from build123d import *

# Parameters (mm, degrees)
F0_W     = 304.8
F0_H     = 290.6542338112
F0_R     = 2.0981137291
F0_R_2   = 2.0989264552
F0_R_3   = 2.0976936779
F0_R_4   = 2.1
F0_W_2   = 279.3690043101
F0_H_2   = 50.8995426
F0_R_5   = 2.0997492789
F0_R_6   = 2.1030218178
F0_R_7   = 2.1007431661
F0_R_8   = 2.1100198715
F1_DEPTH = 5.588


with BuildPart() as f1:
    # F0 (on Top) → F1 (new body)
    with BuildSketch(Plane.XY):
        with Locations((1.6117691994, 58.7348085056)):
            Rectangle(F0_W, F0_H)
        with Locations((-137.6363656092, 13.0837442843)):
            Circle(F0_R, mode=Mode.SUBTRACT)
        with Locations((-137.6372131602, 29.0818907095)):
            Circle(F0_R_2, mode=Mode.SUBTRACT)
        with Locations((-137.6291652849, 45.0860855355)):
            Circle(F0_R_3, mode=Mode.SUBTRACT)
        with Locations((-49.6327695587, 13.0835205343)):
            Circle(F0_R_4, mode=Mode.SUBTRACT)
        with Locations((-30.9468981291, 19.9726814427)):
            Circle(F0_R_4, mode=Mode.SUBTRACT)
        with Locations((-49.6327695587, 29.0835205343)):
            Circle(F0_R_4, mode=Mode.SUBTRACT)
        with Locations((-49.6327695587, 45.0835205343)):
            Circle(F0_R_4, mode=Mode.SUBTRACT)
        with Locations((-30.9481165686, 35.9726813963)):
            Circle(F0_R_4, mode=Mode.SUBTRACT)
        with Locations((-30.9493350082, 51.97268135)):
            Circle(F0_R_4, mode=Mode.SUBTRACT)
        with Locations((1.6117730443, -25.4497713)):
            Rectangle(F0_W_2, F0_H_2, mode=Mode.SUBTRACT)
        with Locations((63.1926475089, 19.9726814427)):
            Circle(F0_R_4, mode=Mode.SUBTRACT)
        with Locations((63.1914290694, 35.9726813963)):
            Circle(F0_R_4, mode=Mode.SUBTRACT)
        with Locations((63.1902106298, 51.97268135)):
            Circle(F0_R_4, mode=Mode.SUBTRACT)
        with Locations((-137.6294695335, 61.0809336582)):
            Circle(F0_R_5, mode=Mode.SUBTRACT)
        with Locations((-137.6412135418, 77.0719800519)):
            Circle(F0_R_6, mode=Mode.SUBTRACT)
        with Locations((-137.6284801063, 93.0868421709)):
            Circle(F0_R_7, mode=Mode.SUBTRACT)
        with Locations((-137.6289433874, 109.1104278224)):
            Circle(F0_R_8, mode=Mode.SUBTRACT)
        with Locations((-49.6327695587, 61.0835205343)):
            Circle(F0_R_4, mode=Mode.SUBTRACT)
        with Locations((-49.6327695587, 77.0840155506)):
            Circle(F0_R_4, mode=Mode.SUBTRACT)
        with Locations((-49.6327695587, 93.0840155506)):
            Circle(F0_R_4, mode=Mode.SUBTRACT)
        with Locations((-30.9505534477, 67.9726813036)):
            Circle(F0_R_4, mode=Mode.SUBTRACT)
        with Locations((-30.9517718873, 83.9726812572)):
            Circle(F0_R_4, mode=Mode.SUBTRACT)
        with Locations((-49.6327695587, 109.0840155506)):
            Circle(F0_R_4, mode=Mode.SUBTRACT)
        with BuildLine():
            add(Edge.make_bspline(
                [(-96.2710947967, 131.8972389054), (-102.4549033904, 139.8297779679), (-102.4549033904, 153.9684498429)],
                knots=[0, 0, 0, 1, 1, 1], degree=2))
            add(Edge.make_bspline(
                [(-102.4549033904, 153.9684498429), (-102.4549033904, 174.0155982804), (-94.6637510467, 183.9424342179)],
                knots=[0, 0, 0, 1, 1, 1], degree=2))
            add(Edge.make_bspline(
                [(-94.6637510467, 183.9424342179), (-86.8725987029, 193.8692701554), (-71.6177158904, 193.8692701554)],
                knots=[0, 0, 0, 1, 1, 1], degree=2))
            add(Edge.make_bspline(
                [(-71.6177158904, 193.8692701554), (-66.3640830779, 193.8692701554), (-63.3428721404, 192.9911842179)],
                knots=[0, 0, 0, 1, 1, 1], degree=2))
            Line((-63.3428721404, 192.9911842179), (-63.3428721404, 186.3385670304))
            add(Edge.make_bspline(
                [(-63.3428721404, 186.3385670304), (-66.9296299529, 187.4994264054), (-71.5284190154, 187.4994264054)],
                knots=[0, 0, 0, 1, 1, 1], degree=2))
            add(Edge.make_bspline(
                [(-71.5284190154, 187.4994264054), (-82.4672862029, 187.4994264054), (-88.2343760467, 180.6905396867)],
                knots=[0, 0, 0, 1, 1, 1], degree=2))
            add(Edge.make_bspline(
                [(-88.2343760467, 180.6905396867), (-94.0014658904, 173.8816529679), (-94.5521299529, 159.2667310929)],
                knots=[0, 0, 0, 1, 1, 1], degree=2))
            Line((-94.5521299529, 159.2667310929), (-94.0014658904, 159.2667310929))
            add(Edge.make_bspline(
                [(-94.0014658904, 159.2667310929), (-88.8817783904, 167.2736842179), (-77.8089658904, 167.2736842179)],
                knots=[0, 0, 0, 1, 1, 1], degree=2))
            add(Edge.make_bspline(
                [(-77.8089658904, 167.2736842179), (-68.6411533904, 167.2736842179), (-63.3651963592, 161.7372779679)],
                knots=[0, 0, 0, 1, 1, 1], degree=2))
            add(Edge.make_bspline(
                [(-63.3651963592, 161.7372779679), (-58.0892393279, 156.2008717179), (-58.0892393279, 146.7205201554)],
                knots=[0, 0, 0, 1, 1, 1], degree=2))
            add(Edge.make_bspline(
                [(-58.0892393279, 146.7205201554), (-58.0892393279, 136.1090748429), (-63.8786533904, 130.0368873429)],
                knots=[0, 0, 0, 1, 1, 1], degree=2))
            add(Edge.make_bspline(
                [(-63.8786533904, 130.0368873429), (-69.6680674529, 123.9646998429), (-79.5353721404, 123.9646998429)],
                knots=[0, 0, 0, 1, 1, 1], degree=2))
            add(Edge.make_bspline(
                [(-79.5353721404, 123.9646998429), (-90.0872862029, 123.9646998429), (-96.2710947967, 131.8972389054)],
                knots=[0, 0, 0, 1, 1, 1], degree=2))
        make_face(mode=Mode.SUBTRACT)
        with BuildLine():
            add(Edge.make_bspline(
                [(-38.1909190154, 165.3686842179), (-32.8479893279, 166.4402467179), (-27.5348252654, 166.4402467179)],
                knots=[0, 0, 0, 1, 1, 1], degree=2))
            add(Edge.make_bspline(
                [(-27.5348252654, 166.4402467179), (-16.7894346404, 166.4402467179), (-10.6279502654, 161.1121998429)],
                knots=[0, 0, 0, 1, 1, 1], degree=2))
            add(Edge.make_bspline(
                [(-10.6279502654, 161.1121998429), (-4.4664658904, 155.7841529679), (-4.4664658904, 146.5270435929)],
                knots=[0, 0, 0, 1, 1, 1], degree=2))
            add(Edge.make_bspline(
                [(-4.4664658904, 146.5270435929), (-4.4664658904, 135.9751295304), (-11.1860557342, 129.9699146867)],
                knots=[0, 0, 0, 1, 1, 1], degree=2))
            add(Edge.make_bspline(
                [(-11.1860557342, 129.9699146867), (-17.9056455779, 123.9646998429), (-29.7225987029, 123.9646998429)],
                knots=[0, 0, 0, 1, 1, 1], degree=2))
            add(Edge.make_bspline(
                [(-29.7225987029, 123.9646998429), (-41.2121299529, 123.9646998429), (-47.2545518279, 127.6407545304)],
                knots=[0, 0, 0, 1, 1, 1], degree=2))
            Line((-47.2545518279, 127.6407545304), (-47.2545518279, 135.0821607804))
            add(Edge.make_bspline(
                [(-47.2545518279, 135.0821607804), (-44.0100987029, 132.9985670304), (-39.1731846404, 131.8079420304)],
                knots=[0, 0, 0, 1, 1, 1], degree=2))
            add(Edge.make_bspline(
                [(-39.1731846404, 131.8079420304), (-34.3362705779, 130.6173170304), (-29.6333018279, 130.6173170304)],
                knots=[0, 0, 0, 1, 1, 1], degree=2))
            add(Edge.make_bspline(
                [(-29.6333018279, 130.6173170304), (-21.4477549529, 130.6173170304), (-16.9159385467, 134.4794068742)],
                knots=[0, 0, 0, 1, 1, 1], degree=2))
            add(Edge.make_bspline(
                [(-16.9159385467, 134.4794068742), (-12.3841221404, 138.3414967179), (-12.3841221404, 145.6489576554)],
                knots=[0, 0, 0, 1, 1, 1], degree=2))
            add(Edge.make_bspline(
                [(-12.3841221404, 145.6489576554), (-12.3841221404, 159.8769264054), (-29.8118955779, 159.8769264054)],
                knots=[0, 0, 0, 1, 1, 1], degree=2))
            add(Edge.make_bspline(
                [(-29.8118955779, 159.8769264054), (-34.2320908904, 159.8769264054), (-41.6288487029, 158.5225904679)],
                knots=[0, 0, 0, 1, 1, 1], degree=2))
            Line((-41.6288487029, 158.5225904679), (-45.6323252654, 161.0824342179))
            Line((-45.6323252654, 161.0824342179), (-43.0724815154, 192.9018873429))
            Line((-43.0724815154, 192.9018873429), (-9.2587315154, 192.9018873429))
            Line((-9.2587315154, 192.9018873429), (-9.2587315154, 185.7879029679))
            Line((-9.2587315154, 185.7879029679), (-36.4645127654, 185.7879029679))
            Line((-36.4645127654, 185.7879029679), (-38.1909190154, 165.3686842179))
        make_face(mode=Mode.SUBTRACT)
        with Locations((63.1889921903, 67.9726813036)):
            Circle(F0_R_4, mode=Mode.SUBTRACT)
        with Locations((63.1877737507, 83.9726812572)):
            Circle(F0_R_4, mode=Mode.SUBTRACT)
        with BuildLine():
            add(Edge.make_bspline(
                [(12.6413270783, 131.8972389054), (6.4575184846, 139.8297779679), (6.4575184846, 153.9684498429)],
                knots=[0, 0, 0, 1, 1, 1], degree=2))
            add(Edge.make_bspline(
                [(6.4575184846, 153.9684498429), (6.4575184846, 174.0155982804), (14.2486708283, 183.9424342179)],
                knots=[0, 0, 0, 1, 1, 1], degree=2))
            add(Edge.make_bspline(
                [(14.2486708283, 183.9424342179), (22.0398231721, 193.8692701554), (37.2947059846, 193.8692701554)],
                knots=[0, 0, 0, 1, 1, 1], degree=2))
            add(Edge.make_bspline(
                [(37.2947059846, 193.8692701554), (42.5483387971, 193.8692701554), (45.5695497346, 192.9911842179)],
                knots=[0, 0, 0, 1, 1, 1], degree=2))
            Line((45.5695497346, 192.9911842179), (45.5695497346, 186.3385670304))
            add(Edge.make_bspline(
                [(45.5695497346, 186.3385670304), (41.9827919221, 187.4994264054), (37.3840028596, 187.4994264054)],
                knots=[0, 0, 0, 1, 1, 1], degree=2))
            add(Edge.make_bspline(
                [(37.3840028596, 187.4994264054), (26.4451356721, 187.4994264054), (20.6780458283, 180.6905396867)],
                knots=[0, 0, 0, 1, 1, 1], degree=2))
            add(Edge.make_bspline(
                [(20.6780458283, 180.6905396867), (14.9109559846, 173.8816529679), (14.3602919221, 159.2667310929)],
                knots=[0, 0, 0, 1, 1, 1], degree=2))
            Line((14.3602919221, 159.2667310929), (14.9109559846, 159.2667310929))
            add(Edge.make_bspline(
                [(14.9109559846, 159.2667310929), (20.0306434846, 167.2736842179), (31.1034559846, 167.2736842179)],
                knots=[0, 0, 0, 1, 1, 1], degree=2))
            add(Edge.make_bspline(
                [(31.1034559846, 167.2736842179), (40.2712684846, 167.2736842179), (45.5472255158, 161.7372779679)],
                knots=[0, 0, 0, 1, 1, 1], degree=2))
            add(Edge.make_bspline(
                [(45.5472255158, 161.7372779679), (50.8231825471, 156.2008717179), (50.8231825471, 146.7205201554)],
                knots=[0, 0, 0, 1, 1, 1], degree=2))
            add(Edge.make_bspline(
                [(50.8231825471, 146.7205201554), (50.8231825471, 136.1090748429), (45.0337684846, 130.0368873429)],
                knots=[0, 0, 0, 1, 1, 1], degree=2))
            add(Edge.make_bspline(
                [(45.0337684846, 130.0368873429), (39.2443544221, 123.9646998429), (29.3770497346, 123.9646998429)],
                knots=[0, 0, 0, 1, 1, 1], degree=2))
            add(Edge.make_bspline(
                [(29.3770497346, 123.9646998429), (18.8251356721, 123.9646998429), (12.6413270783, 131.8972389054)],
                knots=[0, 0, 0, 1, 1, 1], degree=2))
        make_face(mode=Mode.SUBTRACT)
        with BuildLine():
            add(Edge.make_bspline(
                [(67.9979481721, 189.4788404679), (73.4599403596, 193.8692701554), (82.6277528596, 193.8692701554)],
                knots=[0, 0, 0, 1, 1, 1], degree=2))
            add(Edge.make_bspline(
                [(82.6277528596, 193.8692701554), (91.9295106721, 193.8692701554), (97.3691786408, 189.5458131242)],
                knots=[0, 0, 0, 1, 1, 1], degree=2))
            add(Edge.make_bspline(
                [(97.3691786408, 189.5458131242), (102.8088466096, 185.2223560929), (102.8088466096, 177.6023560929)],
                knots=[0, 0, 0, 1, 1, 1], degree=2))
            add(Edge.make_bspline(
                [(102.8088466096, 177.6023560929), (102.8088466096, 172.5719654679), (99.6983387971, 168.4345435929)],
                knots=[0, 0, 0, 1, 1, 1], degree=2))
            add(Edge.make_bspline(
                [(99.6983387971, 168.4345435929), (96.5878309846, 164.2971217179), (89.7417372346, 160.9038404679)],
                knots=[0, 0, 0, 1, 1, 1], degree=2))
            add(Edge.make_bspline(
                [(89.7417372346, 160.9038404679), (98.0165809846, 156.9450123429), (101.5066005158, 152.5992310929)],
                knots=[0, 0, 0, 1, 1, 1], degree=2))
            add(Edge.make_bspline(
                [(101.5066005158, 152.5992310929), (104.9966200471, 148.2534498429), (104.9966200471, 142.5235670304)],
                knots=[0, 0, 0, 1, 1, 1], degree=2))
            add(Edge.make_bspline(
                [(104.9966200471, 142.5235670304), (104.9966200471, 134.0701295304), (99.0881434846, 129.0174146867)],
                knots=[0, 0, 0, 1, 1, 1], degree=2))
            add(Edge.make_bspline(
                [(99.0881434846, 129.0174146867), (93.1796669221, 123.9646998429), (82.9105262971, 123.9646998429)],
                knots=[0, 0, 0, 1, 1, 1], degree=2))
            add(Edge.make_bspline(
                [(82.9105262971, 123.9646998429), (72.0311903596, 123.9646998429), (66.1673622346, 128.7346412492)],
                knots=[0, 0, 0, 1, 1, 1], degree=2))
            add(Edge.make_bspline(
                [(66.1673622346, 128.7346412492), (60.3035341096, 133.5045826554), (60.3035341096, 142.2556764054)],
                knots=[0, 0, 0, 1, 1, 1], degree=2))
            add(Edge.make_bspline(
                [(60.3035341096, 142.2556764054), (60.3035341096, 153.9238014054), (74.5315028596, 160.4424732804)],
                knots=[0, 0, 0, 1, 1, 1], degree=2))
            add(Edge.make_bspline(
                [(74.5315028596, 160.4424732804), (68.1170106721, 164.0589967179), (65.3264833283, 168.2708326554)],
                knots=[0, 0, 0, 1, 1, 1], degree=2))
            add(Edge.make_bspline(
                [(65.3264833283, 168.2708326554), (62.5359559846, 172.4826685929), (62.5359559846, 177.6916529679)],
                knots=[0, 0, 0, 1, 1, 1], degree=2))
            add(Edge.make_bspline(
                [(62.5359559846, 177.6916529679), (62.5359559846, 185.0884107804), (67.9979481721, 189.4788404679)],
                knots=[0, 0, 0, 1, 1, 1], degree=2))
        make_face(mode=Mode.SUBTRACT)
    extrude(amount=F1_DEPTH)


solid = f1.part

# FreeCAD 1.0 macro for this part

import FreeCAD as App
import Part
import Sketcher

V = App.Vector
Q = App.Units.Quantity

doc = App.newDocument("Part")
body = doc.addObject("PartDesign::Body", "Body")

sketch1 = body.newObject("Sketcher::SketchObject", "Sketch")
sketch1.AttachmentSupport = (doc.getObject("XY_Plane"), [""])
sketch1.MapMode = "FlatFace"
sketch1.addGeometry(Part.LineSegment(V(-150.788231, 204.061925, 0), V(-150.788231, -86.592308, 0)), False)
sketch1.addGeometry(Part.LineSegment(V(-150.788231, -86.592308, 0), V(154.011769, -86.592308, 0)), False)
sketch1.addGeometry(Part.LineSegment(V(154.011769, -86.592308, 0), V(154.011769, 204.061925, 0)), False)
sketch1.addGeometry(Part.LineSegment(V(154.011769, 204.061925, 0), V(-150.788231, 204.061925, 0)), False)
sketch1.addGeometry(Part.Circle(V(-137.636366, 13.083744, 0), V(0, 0, 1), 2.098114), False)
sketch1.addGeometry(Part.Circle(V(-137.637213, 29.081891, 0), V(0, 0, 1), 2.098926), False)
sketch1.addGeometry(Part.Circle(V(-137.629165, 45.086086, 0), V(0, 0, 1), 2.097694), False)
sketch1.addGeometry(Part.Circle(V(-137.62947, 61.080934, 0), V(0, 0, 1), 2.099749), False)
sketch1.addGeometry(Part.Circle(V(-49.63277, 13.083521, 0), V(0, 0, 1), 2.1), False)
sketch1.addGeometry(Part.Circle(V(-49.63277, 29.083521, 0), V(0, 0, 1), 2.1), False)
sketch1.addGeometry(Part.Circle(V(-30.946898, 19.972681, 0), V(0, 0, 1), 2.1), False)
sketch1.addGeometry(Part.Circle(V(-30.948117, 35.972681, 0), V(0, 0, 1), 2.1), False)
sketch1.addGeometry(Part.Circle(V(-49.63277, 45.083521, 0), V(0, 0, 1), 2.1), False)
sketch1.addGeometry(Part.Circle(V(-49.63277, 61.083521, 0), V(0, 0, 1), 2.1), False)
sketch1.addGeometry(Part.Circle(V(-30.949335, 51.972681, 0), V(0, 0, 1), 2.1), False)
sketch1.addGeometry(Part.Circle(V(-30.950553, 67.972681, 0), V(0, 0, 1), 2.1), False)
sketch1.addGeometry(Part.LineSegment(V(141.296275, -50.899543, 0), V(-138.072729, -50.899543, 0)), False)
sketch1.addGeometry(Part.LineSegment(V(-138.072729, -50.899543, 0), V(-138.072729, 0, 0)), False)
sketch1.addGeometry(Part.LineSegment(V(-138.072729, 0, 0), V(141.296275, 0, 0)), False)
sketch1.addGeometry(Part.LineSegment(V(141.296275, 0, 0), V(141.296275, -50.899543, 0)), False)
sketch1.addGeometry(Part.Circle(V(63.192648, 19.972681, 0), V(0, 0, 1), 2.1), False)
sketch1.addGeometry(Part.Circle(V(63.191429, 35.972681, 0), V(0, 0, 1), 2.1), False)
sketch1.addGeometry(Part.Circle(V(63.190211, 51.972681, 0), V(0, 0, 1), 2.1), False)
sketch1.addGeometry(Part.Circle(V(63.188992, 67.972681, 0), V(0, 0, 1), 2.1), False)
sketch1.addGeometry(Part.Circle(V(-137.641214, 77.07198, 0), V(0, 0, 1), 2.103022), False)
sketch1.addGeometry(Part.Circle(V(-137.62848, 93.086842, 0), V(0, 0, 1), 2.100743), False)
sketch1.addGeometry(Part.Circle(V(-137.628943, 109.110428, 0), V(0, 0, 1), 2.11002), False)
sketch1.addGeometry(Part.Circle(V(-49.63277, 77.084016, 0), V(0, 0, 1), 2.1), False)
sketch1.addGeometry(Part.Circle(V(-49.63277, 93.084016, 0), V(0, 0, 1), 2.1), False)
sketch1.addGeometry(Part.Circle(V(-30.951772, 83.972681, 0), V(0, 0, 1), 2.1), False)
sketch1.addGeometry(Part.Circle(V(-49.63277, 109.084016, 0), V(0, 0, 1), 2.1), False)
sketch1.addGeometry(Part.BSplineCurve([V(-63.365196, 161.737278, 0), V(-58.089239, 156.200872, 0), V(-58.089239, 136.109075, 0), V(-69.668067, 123.9647, 0), V(-90.087286, 123.9647, 0), V(-96.271095, 131.897239, 0)], [3, 1, 1, 1, 3], [0, 1, 2.119309262, 3.238618524, 4.435587253], False, 2, [1, 1, 1, 1, 1, 1], False), False)
sketch1.addGeometry(Part.BSplineCurve([V(-96.271095, 131.897239, 0), V(-102.454903, 139.829778, 0), V(-102.454903, 174.015598, 0), V(-94.663751, 183.942434, 0)], [3, 1, 3], [0, 1, 2.417894737], False, 2, [1, 1, 1, 1], False), False)
sketch1.addGeometry(Part.BSplineCurve([V(-94.663751, 183.942434, 0), V(-86.872599, 193.86927, 0), V(-66.364083, 193.86927, 0), V(-63.342872, 192.991184, 0)], [3, 1, 3], [0, 1, 1.344390244], False, 2, [1, 1, 1, 1], False), False)
sketch1.addGeometry(Part.LineSegment(V(-63.342872, 192.991184, 0), V(-63.342872, 186.338567, 0)), False)
sketch1.addGeometry(Part.BSplineCurve([V(-63.342872, 186.338567, 0), V(-66.92963, 187.499426, 0), V(-82.467286, 187.499426, 0), V(-88.234376, 180.69054, 0)], [3, 1, 3], [0, 1, 3.378640777], False, 2, [1, 1, 1, 1], False), False)
sketch1.addGeometry(Part.BSplineCurve([V(-88.234376, 180.69054, 0), V(-94.001466, 173.881653, 0), V(-94.55213, 159.266731, 0)], [3, 3], [0, 1], False, 2, [1, 1, 1], False), False)
sketch1.addGeometry(Part.LineSegment(V(-94.55213, 159.266731, 0), V(-94.001466, 159.266731, 0)), False)
sketch1.addGeometry(Part.BSplineCurve([V(-94.001466, 159.266731, 0), V(-88.881778, 167.273684, 0), V(-68.641153, 167.273684, 0), V(-63.365196, 161.737278, 0)], [3, 1, 3], [0, 1, 1.827956989], False, 2, [1, 1, 1, 1], False), False)
sketch1.addGeometry(Part.LineSegment(V(-36.464513, 185.787903, 0), V(-38.190919, 165.368684, 0)), False)
sketch1.addGeometry(Part.BSplineCurve([V(-38.190919, 165.368684, 0), V(-32.847989, 166.440247, 0), V(-16.789435, 166.440247, 0), V(-4.466466, 155.784153, 0), V(-4.466466, 135.97513, 0), V(-11.186056, 129.969915, 0)], [3, 1, 1, 1, 3], [0, 1, 3.022408964, 5.044817927, 7.350104029], False, 2, [1, 1, 1, 1, 1, 1], False), False)
sketch1.addGeometry(Part.BSplineCurve([V(-11.186056, 129.969915, 0), V(-17.905646, 123.9647, 0), V(-41.21213, 123.9647, 0), V(-47.254552, 127.640755, 0)], [3, 1, 3], [0, 1, 1.972292191], False, 2, [1, 1, 1, 1], False), False)
sketch1.addGeometry(Part.LineSegment(V(-47.254552, 127.640755, 0), V(-47.254552, 135.082161, 0)), False)
sketch1.addGeometry(Part.BSplineCurve([V(-47.254552, 135.082161, 0), V(-44.010099, 132.998567, 0), V(-34.336271, 130.617317, 0), V(-21.447755, 130.617317, 0), V(-16.915939, 134.479407, 0)], [3, 1, 1, 3], [0, 1, 2, 3.740506329], False, 2, [1, 1, 1, 1, 1], False), False)
sketch1.addGeometry(Part.BSplineCurve([V(-16.915939, 134.479407, 0), V(-12.384122, 138.341497, 0), V(-12.384122, 159.876926, 0), V(-34.232091, 159.876926, 0), V(-41.628849, 158.52259, 0)], [3, 1, 1, 3], [0, 1, 2.947046843, 3.44087512], False, 2, [1, 1, 1, 1, 1], False), False)
sketch1.addGeometry(Part.LineSegment(V(-41.628849, 158.52259, 0), V(-45.632325, 161.082434, 0)), False)
sketch1.addGeometry(Part.LineSegment(V(-45.632325, 161.082434, 0), V(-43.072482, 192.901887, 0)), False)
sketch1.addGeometry(Part.LineSegment(V(-43.072482, 192.901887, 0), V(-9.258732, 192.901887, 0)), False)
sketch1.addGeometry(Part.LineSegment(V(-9.258732, 192.901887, 0), V(-9.258732, 185.787903, 0)), False)
sketch1.addGeometry(Part.LineSegment(V(-9.258732, 185.787903, 0), V(-36.464513, 185.787903, 0)), False)
sketch1.addGeometry(Part.Circle(V(63.187774, 83.972681, 0), V(0, 0, 1), 2.1), False)
sketch1.addGeometry(Part.BSplineCurve([V(45.547226, 161.737278, 0), V(50.823183, 156.200872, 0), V(50.823183, 136.109075, 0), V(39.244354, 123.9647, 0), V(18.825136, 123.9647, 0), V(12.641327, 131.897239, 0)], [3, 1, 1, 1, 3], [0, 1, 2.119309262, 3.238618524, 4.435587253], False, 2, [1, 1, 1, 1, 1, 1], False), False)
sketch1.addGeometry(Part.BSplineCurve([V(12.641327, 131.897239, 0), V(6.457518, 139.829778, 0), V(6.457518, 174.015598, 0), V(14.248671, 183.942434, 0)], [3, 1, 3], [0, 1, 2.417894737], False, 2, [1, 1, 1, 1], False), False)
sketch1.addGeometry(Part.BSplineCurve([V(14.248671, 183.942434, 0), V(22.039823, 193.86927, 0), V(42.548339, 193.86927, 0), V(45.56955, 192.991184, 0)], [3, 1, 3], [0, 1, 1.344390244], False, 2, [1, 1, 1, 1], False), False)
sketch1.addGeometry(Part.LineSegment(V(45.56955, 192.991184, 0), V(45.56955, 186.338567, 0)), False)
sketch1.addGeometry(Part.BSplineCurve([V(45.56955, 186.338567, 0), V(41.982792, 187.499426, 0), V(26.445136, 187.499426, 0), V(20.678046, 180.69054, 0)], [3, 1, 3], [0, 1, 3.378640777], False, 2, [1, 1, 1, 1], False), False)
sketch1.addGeometry(Part.BSplineCurve([V(20.678046, 180.69054, 0), V(14.910956, 173.881653, 0), V(14.360292, 159.266731, 0)], [3, 3], [0, 1], False, 2, [1, 1, 1], False), False)
sketch1.addGeometry(Part.LineSegment(V(14.360292, 159.266731, 0), V(14.910956, 159.266731, 0)), False)
sketch1.addGeometry(Part.BSplineCurve([V(14.910956, 159.266731, 0), V(20.030643, 167.273684, 0), V(40.271268, 167.273684, 0), V(45.547226, 161.737278, 0)], [3, 1, 3], [0, 1, 1.827956989], False, 2, [1, 1, 1, 1], False), False)
sketch1.addGeometry(Part.BSplineCurve([V(65.326483, 168.270833, 0), V(62.535956, 172.482669, 0), V(62.535956, 185.088411, 0), V(73.45994, 193.86927, 0), V(91.929511, 193.86927, 0), V(97.369179, 189.545813, 0)], [3, 1, 1, 1, 3], [0, 1, 2.42, 3.84, 5.280746753], False, 2, [1, 1, 1, 1, 1, 1], False), False)
sketch1.addGeometry(Part.BSplineCurve([V(97.369179, 189.545813, 0), V(102.808847, 185.222356, 0), V(102.808847, 172.571965, 0), V(96.587831, 164.297122, 0), V(89.741737, 160.90384, 0)], [3, 1, 1, 3], [0, 1, 1.66015625, 2.3203125], False, 2, [1, 1, 1, 1, 1], False), False)
sketch1.addGeometry(Part.BSplineCurve([V(89.741737, 160.90384, 0), V(98.016581, 156.945012, 0), V(101.506601, 152.599231, 0)], [3, 3], [0, 1], False, 2, [1, 1, 1], False), False)
sketch1.addGeometry(Part.BSplineCurve([V(101.506601, 152.599231, 0), V(104.99662, 148.25345, 0), V(104.99662, 134.07013, 0), V(99.088143, 129.017415, 0)], [3, 1, 3], [0, 1, 2.475324675], False, 2, [1, 1, 1, 1], False), False)
sketch1.addGeometry(Part.BSplineCurve([V(99.088143, 129.017415, 0), V(93.179667, 123.9647, 0), V(72.03119, 123.9647, 0), V(66.167362, 128.734641, 0)], [3, 1, 3], [0, 1, 2.05942029], False, 2, [1, 1, 1, 1], False), False)
sketch1.addGeometry(Part.BSplineCurve([V(66.167362, 128.734641, 0), V(60.303534, 133.504583, 0), V(60.303534, 153.923801, 0), V(74.531503, 160.442473, 0)], [3, 1, 3], [0, 1, 2.333333333], False, 2, [1, 1, 1, 1], False), False)
sketch1.addGeometry(Part.BSplineCurve([V(74.531503, 160.442473, 0), V(68.117011, 164.058997, 0), V(65.326483, 168.270833, 0)], [3, 3], [0, 1], False, 2, [1, 1, 1], False), False)
sketch1.addConstraint(Sketcher.Constraint("Block", 31))
sketch1.addConstraint(Sketcher.Constraint("Block", 32))
sketch1.addConstraint(Sketcher.Constraint("Block", 33))
sketch1.addConstraint(Sketcher.Constraint("Block", 35))
sketch1.addConstraint(Sketcher.Constraint("Block", 36))
sketch1.addConstraint(Sketcher.Constraint("Block", 38))
sketch1.addConstraint(Sketcher.Constraint("Block", 40))
sketch1.addConstraint(Sketcher.Constraint("Block", 41))
sketch1.addConstraint(Sketcher.Constraint("Block", 43))
sketch1.addConstraint(Sketcher.Constraint("Block", 44))
sketch1.addConstraint(Sketcher.Constraint("Block", 51))
sketch1.addConstraint(Sketcher.Constraint("Block", 52))
sketch1.addConstraint(Sketcher.Constraint("Block", 53))
sketch1.addConstraint(Sketcher.Constraint("Block", 55))
sketch1.addConstraint(Sketcher.Constraint("Block", 56))
sketch1.addConstraint(Sketcher.Constraint("Block", 58))
sketch1.addConstraint(Sketcher.Constraint("Block", 59))
sketch1.addConstraint(Sketcher.Constraint("Block", 60))
sketch1.addConstraint(Sketcher.Constraint("Block", 61))
sketch1.addConstraint(Sketcher.Constraint("Block", 62))
sketch1.addConstraint(Sketcher.Constraint("Block", 63))
sketch1.addConstraint(Sketcher.Constraint("Block", 64))
sketch1.addConstraint(Sketcher.Constraint("Block", 65))
sketch1.addConstraint(Sketcher.Constraint("Coincident", 0, 2, 1, 1))
sketch1.addConstraint(Sketcher.Constraint("Coincident", 1, 2, 2, 1))
sketch1.addConstraint(Sketcher.Constraint("Coincident", 2, 2, 3, 1))
sketch1.addConstraint(Sketcher.Constraint("Coincident", 3, 2, 0, 1))
sketch1.addConstraint(Sketcher.Constraint("Coincident", 16, 2, 17, 1))
sketch1.addConstraint(Sketcher.Constraint("Coincident", 17, 2, 18, 1))
sketch1.addConstraint(Sketcher.Constraint("Coincident", 18, 2, 19, 1))
sketch1.addConstraint(Sketcher.Constraint("Coincident", 19, 2, 16, 1))
sketch1.addConstraint(Sketcher.Constraint("Coincident", 33, 2, 34, 1))
sketch1.addConstraint(Sketcher.Constraint("Coincident", 34, 2, 35, 1))
sketch1.addConstraint(Sketcher.Constraint("Coincident", 36, 2, 37, 1))
sketch1.addConstraint(Sketcher.Constraint("Coincident", 37, 2, 38, 1))
sketch1.addConstraint(Sketcher.Constraint("Coincident", 39, 2, 40, 1))
sketch1.addConstraint(Sketcher.Constraint("Coincident", 41, 2, 42, 1))
sketch1.addConstraint(Sketcher.Constraint("Coincident", 42, 2, 43, 1))
sketch1.addConstraint(Sketcher.Constraint("Coincident", 44, 2, 45, 1))
sketch1.addConstraint(Sketcher.Constraint("Coincident", 45, 2, 46, 1))
sketch1.addConstraint(Sketcher.Constraint("Coincident", 46, 2, 47, 1))
sketch1.addConstraint(Sketcher.Constraint("Coincident", 47, 2, 48, 1))
sketch1.addConstraint(Sketcher.Constraint("Coincident", 48, 2, 49, 1))
sketch1.addConstraint(Sketcher.Constraint("Coincident", 49, 2, 39, 1))
sketch1.addConstraint(Sketcher.Constraint("Coincident", 53, 2, 54, 1))
sketch1.addConstraint(Sketcher.Constraint("Coincident", 54, 2, 55, 1))
sketch1.addConstraint(Sketcher.Constraint("Coincident", 56, 2, 57, 1))
sketch1.addConstraint(Sketcher.Constraint("Coincident", 57, 2, 58, 1))
sketch1.addConstraint(Sketcher.Constraint("Vertical", 0))
sketch1.addConstraint(Sketcher.Constraint("Horizontal", 1))
sketch1.addConstraint(Sketcher.Constraint("Vertical", 2))
sketch1.addConstraint(Sketcher.Constraint("Horizontal", 3))
sketch1.addConstraint(Sketcher.Constraint("Horizontal", 16))
sketch1.addConstraint(Sketcher.Constraint("Vertical", 17))
sketch1.addConstraint(Sketcher.Constraint("Horizontal", 18))
sketch1.addConstraint(Sketcher.Constraint("Vertical", 19))
sketch1.addConstraint(Sketcher.Constraint("Horizontal", 47))
sketch1.addConstraint(Sketcher.Constraint("Vertical", 48))
sketch1.addConstraint(Sketcher.Constraint("Horizontal", 49))
sketch1.addConstraint(Sketcher.Constraint("Equal", 8, 9))
sketch1.addConstraint(Sketcher.Constraint("Equal", 9, 10))
sketch1.addConstraint(Sketcher.Constraint("Equal", 10, 11))
sketch1.addConstraint(Sketcher.Constraint("Equal", 11, 12))
sketch1.addConstraint(Sketcher.Constraint("Equal", 12, 13))
sketch1.addConstraint(Sketcher.Constraint("Equal", 13, 14))
sketch1.addConstraint(Sketcher.Constraint("Equal", 14, 15))
sketch1.addConstraint(Sketcher.Constraint("Equal", 15, 20))
sketch1.addConstraint(Sketcher.Constraint("Equal", 20, 21))
sketch1.addConstraint(Sketcher.Constraint("Equal", 21, 22))
sketch1.addConstraint(Sketcher.Constraint("Equal", 22, 23))
sketch1.addConstraint(Sketcher.Constraint("Equal", 23, 27))
sketch1.addConstraint(Sketcher.Constraint("Equal", 27, 28))
sketch1.addConstraint(Sketcher.Constraint("Equal", 28, 29))
sketch1.addConstraint(Sketcher.Constraint("Equal", 29, 30))
sketch1.addConstraint(Sketcher.Constraint("Equal", 30, 50))
sketch1.addConstraint(Sketcher.Constraint("PointOnObject", 17, 2, -1))
sketch1.addConstraint(Sketcher.Constraint("Horizontal", 10, 3, 20, 3))
sketch1.addConstraint(Sketcher.Constraint("Horizontal", 11, 3, 21, 3))
sketch1.addConstraint(Sketcher.Constraint("Horizontal", 14, 3, 22, 3))
sketch1.addConstraint(Sketcher.Constraint("Horizontal", 15, 3, 23, 3))
sketch1.addConstraint(Sketcher.Constraint("Horizontal", 29, 3, 50, 3))
sketch1.addConstraint(Sketcher.Constraint("Vertical", 8, 3, 9, 3))
sketch1.addConstraint(Sketcher.Constraint("Vertical", 9, 3, 12, 3))
sketch1.addConstraint(Sketcher.Constraint("Vertical", 12, 3, 13, 3))
sketch1.addConstraint(Sketcher.Constraint("Vertical", 13, 3, 27, 3))
sketch1.addConstraint(Sketcher.Constraint("Vertical", 27, 3, 28, 3))
sketch1.addConstraint(Sketcher.Constraint("Vertical", 28, 3, 30, 3))
sketch1.addConstraint(Sketcher.Constraint("DistanceX", 1, 1, 1, 2, Q("12 in")))
sketch1.addConstraint(Sketcher.Constraint("Diameter", 7, 4.199499))
sketch1.addConstraint(Sketcher.Constraint("Diameter", 8, 4.2))
sketch1.addConstraint(Sketcher.Constraint("Diameter", 26, 4.22004))
sketch1.addConstraint(Sketcher.Constraint("Diameter", 4, 4.196227))
sketch1.addConstraint(Sketcher.Constraint("Diameter", 5, 4.197853))
sketch1.addConstraint(Sketcher.Constraint("Diameter", 6, 4.195387))
sketch1.addConstraint(Sketcher.Constraint("Diameter", 24, 4.206044))
sketch1.addConstraint(Sketcher.Constraint("Diameter", 25, 4.201486))
sketch1.addConstraint(Sketcher.Constraint("DistanceX", 23, 3, 1, 2, Q("3.5756999 in")))
sketch1.addConstraint(Sketcher.Constraint("DistanceX", 47, 1, 47, 2, 33.81375))
sketch1.addConstraint(Sketcher.Constraint("DistanceX", 49, 2, 49, 1, 27.205781))
sketch1.addConstraint(Sketcher.Constraint("DistanceX", 10, 3, -1, 1, 30.946898))
sketch1.addConstraint(Sketcher.Constraint("DistanceX", 4, 3, 6, 3, 0.0072))
sketch1.addConstraint(Sketcher.Constraint("DistanceX", 7, 3, 8, 3, 87.9967))
sketch1.addConstraint(Sketcher.Constraint("DistanceY", 8, 3, 9, 3, 16.0))
sketch1.addConstraint(Sketcher.Constraint("DistanceY", 10, 3, 11, 3, 16.0))
sketch1.addConstraint(Sketcher.Constraint("DistanceY", 9, 3, 12, 3, 16.0))
sketch1.addConstraint(Sketcher.Constraint("DistanceY", 12, 3, 13, 3, 16.0))
sketch1.addConstraint(Sketcher.Constraint("DistanceY", 11, 3, 14, 3, 16.0))
sketch1.addConstraint(Sketcher.Constraint("DistanceY", 14, 3, 15, 3, 16.0))
sketch1.addConstraint(Sketcher.Constraint("DistanceX", 15, 3, 20, 3, 94.143201))
sketch1.addConstraint(Sketcher.Constraint("DistanceX", 24, 3, 5, 3, 0.004))
sketch1.addConstraint(Sketcher.Constraint("DistanceY", 27, 3, 28, 3, 16.0))
sketch1.addConstraint(Sketcher.Constraint("DistanceY", 15, 3, 29, 3, 16.0))
sketch1.addConstraint(Sketcher.Constraint("DistanceY", 28, 3, 30, 3, 16.0))
sketch1.addConstraint(Sketcher.Constraint("DistanceY", 0, 2, 5, 3, 115.674199))
sketch1.addConstraint(Sketcher.Constraint("DistanceX", 0, 2, 16, 2, 12.715502))
sketch1.addConstraint(Sketcher.Constraint("DistanceX", 34, 2, 29, 3, 32.3911))
sketch1.addConstraint(Sketcher.Constraint("Distance", 39, 20.492071))
sketch1.addConstraint(Sketcher.Constraint("DistanceX", 16, 2, 16, 1, 279.369004))
sketch1.addConstraint(Sketcher.Constraint("DistanceY", 0, 2, 0, 1, 290.654234))
sketch1.addConstraint(Sketcher.Constraint("DistanceY", 17, 1, 17, 2, 50.899543))
sketch1.addConstraint(Sketcher.Constraint("DistanceY", 48, 2, 48, 1, 7.113984))
sketch1.addConstraint(Sketcher.Constraint("DistanceY", -1, 1, 5, 3, 29.081891))
sketch1.addConstraint(Sketcher.Constraint("DistanceX", 7, 3, -1, 1, 137.62947))
sketch1.addConstraint(Sketcher.Constraint("DistanceY", -1, 1, 8, 3, 13.083521))
sketch1.addConstraint(Sketcher.Constraint("DistanceY", -1, 1, 10, 3, 19.972681))
sketch1.addConstraint(Sketcher.Constraint("DistanceX", -1, 1, 21, 3, 63.191429))
sketch1.addConstraint(Sketcher.Constraint("DistanceX", -1, 1, 22, 3, 63.190211))
sketch1.addConstraint(Sketcher.Constraint("DistanceY", -1, 1, 24, 3, 77.07198))
sketch1.addConstraint(Sketcher.Constraint("DistanceX", 25, 3, -1, 1, 137.62848))
sketch1.addConstraint(Sketcher.Constraint("DistanceX", 0, 2, -1, 1, 150.788231))
sketch1.addConstraint(Sketcher.Constraint("DistanceX", 46, 2, -1, 1, 43.072482))
sketch1.addConstraint(Sketcher.Constraint("DistanceY", 4, 3, 6, 3, 32.002341))
sketch1.addConstraint(Sketcher.Constraint("DistanceY", 6, 3, 7, 3, 15.994848))
sketch1.addConstraint(Sketcher.Constraint("DistanceX", 11, 3, 10, 3, 0.001218))
sketch1.addConstraint(Sketcher.Constraint("DistanceX", 6, 3, 11, 3, 106.681049))
sketch1.addConstraint(Sketcher.Constraint("DistanceX", 14, 3, 11, 3, 0.001218))
sketch1.addConstraint(Sketcher.Constraint("DistanceX", 15, 3, 14, 3, 0.001218))
sketch1.addConstraint(Sketcher.Constraint("DistanceX", 24, 3, 6, 3, 0.012048))
sketch1.addConstraint(Sketcher.Constraint("DistanceY", 7, 3, 25, 3, 32.005909))
sketch1.addConstraint(Sketcher.Constraint("DistanceY", 5, 3, 25, 3, 64.004951))
sketch1.addConstraint(Sketcher.Constraint("DistanceX", 24, 3, 26, 3, 0.01227))
sketch1.addConstraint(Sketcher.Constraint("DistanceX", 50, 3, 23, 3, 0.001218))
sketch1.addConstraint(Sketcher.Constraint("DistanceY", 30, 3, 3, 2, 94.97791))
sketch1.addConstraint(Sketcher.Constraint("DistanceY", 26, 3, 34, 2, 77.228139))
sketch1.addConstraint(Sketcher.Constraint("DistanceY", 45, 2, 39, 2, 4.28625))
sketch1.addConstraint(Sketcher.Constraint("DistanceX", 37, 2, 45, 2, 48.369141))
pad1 = body.newObject("PartDesign::Pad", "Pad")
pad1.Profile = sketch1
pad1.Length = Q("0.22 in")

doc.recompute()
